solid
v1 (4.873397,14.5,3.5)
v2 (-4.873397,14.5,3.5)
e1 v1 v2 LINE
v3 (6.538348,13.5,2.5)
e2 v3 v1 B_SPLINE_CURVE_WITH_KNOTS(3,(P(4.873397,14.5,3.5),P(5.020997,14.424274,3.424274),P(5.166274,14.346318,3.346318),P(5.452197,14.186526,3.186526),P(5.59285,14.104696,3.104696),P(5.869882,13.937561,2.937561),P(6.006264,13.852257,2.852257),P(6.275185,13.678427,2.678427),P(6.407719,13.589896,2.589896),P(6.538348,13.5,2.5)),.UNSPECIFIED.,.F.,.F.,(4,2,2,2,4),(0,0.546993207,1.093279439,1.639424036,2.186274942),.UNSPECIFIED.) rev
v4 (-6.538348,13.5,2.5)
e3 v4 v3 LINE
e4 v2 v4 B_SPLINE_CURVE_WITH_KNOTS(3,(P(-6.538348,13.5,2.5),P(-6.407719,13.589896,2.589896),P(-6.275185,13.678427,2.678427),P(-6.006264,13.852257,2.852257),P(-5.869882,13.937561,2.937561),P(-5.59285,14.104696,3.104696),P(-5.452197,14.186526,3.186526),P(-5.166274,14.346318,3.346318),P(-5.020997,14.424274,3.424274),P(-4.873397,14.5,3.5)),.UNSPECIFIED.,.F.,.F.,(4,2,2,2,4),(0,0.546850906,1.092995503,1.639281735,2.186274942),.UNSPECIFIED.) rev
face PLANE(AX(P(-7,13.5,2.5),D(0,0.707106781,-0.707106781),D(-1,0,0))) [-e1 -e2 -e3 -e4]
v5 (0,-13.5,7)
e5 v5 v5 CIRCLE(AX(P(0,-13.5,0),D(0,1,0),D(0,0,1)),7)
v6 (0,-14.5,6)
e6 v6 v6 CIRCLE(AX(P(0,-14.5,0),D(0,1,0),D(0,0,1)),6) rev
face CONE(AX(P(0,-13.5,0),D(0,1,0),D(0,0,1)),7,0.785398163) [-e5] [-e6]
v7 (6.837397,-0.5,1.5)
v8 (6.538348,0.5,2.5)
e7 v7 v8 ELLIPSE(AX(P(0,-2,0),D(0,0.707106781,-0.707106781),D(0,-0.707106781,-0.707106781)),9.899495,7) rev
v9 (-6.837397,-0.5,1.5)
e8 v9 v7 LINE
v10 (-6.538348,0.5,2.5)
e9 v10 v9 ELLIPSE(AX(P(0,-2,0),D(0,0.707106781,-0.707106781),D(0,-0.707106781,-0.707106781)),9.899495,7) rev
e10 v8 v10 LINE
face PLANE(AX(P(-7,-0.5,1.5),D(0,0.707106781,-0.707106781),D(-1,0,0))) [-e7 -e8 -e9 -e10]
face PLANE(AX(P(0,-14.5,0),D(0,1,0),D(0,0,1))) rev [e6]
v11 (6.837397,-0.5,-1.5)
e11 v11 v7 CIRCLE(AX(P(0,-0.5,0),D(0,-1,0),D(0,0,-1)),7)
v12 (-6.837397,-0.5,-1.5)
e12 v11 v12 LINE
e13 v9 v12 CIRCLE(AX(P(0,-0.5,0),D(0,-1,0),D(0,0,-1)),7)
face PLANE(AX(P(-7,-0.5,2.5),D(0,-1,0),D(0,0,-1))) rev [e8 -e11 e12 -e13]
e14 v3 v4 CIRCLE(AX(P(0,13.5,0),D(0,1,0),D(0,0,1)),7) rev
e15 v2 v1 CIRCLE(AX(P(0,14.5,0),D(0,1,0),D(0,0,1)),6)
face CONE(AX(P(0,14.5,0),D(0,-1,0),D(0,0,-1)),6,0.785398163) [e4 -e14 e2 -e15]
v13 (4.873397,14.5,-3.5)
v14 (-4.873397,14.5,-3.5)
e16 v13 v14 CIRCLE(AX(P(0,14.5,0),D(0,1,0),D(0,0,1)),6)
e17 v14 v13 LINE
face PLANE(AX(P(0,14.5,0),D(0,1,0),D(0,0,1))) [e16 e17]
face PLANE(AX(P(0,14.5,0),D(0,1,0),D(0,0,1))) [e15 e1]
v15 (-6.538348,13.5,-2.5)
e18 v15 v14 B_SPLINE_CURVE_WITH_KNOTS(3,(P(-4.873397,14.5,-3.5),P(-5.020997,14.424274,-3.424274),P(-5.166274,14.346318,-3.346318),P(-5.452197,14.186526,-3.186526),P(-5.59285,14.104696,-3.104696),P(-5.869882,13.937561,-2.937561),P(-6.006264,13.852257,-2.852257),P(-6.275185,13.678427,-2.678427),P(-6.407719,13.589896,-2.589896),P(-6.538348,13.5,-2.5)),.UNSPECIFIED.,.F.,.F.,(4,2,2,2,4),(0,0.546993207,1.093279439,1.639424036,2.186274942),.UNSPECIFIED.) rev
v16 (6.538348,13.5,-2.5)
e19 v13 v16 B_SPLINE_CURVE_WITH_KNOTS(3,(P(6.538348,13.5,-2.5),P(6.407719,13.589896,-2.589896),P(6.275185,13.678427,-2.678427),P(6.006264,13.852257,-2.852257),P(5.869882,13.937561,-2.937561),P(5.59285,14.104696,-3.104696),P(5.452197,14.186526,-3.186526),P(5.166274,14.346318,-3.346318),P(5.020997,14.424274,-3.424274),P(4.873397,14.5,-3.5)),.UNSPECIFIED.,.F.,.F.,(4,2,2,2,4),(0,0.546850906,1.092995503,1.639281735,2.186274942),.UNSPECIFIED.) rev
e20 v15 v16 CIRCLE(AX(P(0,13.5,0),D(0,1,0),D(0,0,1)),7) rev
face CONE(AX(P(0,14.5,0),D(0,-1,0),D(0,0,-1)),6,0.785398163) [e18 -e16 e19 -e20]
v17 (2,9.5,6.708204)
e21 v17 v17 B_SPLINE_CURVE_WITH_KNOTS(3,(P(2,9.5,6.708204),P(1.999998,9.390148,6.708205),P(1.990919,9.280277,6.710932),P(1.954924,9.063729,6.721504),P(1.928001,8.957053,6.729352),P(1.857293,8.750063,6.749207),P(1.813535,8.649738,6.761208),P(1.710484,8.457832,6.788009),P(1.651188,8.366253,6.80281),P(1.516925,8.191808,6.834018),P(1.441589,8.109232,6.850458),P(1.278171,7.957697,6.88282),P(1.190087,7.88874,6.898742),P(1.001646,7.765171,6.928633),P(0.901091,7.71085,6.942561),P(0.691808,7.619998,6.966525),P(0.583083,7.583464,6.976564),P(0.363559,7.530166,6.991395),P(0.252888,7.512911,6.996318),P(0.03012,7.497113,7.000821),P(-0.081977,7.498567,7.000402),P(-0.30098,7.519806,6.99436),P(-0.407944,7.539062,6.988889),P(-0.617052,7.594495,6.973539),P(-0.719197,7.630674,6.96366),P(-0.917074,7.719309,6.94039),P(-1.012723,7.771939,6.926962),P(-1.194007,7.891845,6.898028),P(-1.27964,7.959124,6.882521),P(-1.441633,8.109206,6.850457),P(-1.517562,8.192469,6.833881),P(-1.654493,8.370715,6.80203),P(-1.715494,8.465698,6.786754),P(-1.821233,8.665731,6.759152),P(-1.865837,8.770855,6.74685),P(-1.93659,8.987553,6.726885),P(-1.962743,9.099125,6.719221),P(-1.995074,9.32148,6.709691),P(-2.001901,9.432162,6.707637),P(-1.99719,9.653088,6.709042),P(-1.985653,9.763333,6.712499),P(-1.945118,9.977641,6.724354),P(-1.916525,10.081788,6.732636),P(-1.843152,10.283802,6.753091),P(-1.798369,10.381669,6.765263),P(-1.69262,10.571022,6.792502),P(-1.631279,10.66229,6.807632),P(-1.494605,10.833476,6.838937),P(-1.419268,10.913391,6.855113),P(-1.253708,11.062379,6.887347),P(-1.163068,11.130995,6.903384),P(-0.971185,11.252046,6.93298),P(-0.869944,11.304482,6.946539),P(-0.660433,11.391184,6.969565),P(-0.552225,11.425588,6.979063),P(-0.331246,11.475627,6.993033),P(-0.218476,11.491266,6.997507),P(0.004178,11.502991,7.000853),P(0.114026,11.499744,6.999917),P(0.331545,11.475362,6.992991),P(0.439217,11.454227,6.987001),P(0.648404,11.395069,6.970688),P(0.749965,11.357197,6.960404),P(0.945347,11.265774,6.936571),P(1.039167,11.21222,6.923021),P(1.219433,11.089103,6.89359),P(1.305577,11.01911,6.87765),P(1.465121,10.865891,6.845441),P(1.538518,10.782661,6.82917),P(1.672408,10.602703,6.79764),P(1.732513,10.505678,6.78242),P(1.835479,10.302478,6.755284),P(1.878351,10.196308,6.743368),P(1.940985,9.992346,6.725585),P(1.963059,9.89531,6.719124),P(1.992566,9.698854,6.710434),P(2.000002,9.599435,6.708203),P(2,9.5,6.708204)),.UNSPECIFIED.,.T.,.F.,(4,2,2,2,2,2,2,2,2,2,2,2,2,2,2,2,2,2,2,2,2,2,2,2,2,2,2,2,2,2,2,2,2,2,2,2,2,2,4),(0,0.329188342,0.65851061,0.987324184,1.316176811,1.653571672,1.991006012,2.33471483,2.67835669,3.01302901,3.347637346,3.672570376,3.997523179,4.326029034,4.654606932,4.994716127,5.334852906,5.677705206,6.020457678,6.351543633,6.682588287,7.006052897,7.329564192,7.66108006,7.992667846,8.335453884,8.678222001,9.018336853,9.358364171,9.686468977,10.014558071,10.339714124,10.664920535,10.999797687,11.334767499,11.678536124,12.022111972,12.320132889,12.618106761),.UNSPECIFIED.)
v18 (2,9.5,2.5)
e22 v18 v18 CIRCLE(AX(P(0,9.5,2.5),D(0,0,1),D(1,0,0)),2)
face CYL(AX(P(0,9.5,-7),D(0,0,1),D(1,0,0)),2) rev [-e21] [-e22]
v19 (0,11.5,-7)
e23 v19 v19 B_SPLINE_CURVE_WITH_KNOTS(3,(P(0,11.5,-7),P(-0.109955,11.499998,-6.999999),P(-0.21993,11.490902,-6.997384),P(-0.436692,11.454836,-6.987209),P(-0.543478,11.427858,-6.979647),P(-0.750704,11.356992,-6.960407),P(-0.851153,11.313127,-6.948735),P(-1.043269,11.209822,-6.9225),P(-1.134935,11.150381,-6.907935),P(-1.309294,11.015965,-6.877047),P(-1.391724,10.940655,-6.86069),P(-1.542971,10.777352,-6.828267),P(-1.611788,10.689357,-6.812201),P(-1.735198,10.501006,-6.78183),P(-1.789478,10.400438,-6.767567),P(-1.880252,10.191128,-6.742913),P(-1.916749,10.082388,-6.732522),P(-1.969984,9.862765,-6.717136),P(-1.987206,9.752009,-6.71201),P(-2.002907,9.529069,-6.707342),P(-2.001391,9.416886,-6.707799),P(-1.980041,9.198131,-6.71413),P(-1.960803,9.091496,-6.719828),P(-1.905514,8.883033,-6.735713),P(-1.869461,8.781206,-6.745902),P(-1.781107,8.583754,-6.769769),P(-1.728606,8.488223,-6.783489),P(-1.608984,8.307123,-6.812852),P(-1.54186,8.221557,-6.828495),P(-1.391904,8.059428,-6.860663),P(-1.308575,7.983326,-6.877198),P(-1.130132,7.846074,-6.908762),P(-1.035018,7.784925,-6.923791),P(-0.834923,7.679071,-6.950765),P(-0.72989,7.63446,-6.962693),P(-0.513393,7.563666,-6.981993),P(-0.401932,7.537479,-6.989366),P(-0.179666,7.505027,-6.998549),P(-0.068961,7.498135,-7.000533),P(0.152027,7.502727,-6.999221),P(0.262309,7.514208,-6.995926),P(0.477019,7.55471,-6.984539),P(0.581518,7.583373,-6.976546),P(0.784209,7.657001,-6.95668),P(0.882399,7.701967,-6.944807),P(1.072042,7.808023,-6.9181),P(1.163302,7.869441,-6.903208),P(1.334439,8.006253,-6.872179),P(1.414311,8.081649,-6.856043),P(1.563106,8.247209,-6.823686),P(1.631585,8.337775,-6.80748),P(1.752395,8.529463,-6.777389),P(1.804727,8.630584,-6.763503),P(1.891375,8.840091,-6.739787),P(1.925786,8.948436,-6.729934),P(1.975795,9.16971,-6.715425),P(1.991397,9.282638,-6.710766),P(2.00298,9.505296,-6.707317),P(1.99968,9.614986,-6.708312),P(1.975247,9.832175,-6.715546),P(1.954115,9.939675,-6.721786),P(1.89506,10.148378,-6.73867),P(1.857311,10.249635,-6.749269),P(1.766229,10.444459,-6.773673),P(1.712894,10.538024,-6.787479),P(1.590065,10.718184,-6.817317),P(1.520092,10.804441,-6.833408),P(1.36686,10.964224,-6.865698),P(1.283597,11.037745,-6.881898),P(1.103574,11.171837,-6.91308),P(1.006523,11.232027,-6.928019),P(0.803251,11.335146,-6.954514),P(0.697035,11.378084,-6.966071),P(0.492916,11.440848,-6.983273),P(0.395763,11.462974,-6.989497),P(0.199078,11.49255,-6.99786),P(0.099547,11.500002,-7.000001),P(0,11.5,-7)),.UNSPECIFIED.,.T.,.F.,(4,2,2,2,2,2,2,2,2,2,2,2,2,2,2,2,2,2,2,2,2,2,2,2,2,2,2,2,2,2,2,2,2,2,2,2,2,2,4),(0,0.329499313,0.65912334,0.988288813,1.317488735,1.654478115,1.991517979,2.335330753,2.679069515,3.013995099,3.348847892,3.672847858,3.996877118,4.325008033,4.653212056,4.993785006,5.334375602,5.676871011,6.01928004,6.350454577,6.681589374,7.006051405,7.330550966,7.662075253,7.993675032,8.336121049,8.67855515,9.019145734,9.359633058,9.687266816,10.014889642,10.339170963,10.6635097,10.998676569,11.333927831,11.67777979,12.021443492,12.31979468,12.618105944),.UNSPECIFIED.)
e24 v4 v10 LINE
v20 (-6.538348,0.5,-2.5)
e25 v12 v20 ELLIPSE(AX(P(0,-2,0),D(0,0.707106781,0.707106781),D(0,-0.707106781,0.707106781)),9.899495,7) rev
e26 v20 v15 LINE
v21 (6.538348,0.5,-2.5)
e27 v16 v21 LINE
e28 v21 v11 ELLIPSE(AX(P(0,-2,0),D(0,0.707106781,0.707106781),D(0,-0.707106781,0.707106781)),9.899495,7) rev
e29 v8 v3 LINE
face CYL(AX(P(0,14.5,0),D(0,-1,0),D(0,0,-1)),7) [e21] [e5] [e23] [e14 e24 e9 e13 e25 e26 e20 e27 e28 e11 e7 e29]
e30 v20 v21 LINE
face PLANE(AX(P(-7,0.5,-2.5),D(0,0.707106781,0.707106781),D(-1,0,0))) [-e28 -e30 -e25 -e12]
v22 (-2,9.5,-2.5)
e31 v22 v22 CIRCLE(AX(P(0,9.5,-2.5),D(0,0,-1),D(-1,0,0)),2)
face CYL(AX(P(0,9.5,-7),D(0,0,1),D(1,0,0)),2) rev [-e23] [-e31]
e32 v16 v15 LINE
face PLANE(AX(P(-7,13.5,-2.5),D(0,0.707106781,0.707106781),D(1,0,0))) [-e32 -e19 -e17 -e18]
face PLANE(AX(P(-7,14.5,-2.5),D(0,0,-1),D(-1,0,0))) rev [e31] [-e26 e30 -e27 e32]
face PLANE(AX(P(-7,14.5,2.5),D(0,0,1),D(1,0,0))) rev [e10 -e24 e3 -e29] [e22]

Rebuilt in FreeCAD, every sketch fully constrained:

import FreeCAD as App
import Part
import Sketcher

V = App.Vector
Q = App.Units.Quantity


def edges_at(feature, points):
    """Names of the edges that pass closest to the given points."""
    edges = feature.Shape.Edges
    near = lambda p: min(range(len(edges)), key=lambda i: edges[i].distToShape(Part.Vertex(*p))[0])
    return sorted({f"Edge{near(p) + 1}" for p in points})


def add_polygon(sketch, points):
    """Adds a closed chain of lines whose ends are joined by coincident constraints."""
    first, n = sketch.GeometryCount, len(points)
    for a, b in zip(points, points[1:] + points[:1]):
        sketch.addGeometry(Part.LineSegment(App.Vector(*a, 0), App.Vector(*b, 0)), False)
    for i in range(n):
        sketch.addConstraint(Sketcher.Constraint("Coincident", first + i, 2, first + (i + 1) % n, 1))

doc = App.newDocument("Part")
body = doc.addObject("PartDesign::Body", "Body")

# Sketch on XZ plane
sketch1 = body.newObject("Sketcher::SketchObject", "Sketch")
sketch1.AttachmentSupport = (doc.getObject("XZ_Plane"), [""])
sketch1.MapMode = "FlatFace"
sketch1.addGeometry(Part.Circle(V(0, 0, 0), V(0, 0, 1), 7), False)
sketch1.addConstraint(Sketcher.Constraint("Coincident", 0, 3, -1, 1))
sketch1.addConstraint(Sketcher.Constraint("Diameter", 0, Q("14 mm")))
pad1 = body.newObject("PartDesign::Pad", "Pad")
pad1.Profile = sketch1
pad1.Length = 29
pad1.Midplane = True

# Sketch on YZ plane
sketch2 = body.newObject("Sketcher::SketchObject", "Sketch001")
sketch2.AttachmentSupport = (doc.getObject("YZ_Plane"), [""])
sketch2.MapMode = "FlatFace"
add_polygon(sketch2, [(14, 2), (0, 2), (0, -2), (14, -2)])  # lines 0-3
sketch2.addConstraint(Sketcher.Constraint("Horizontal", 0))
sketch2.addConstraint(Sketcher.Constraint("Vertical", 1))
sketch2.addConstraint(Sketcher.Constraint("Horizontal", 2))
sketch2.addConstraint(Sketcher.Constraint("Vertical", 3))
sketch2.addConstraint(Sketcher.Constraint("DistanceX", 0, 2, 0, 1, Q("15 mm")))
sketch2.addConstraint(Sketcher.Constraint("DistanceY", 1, 2, 1, 1, Q("5 mm")))
sketch2.addConstraint(Sketcher.Constraint("DistanceX", 0, 2, -1, 1, Q("0.5 mm")))
sketch2.addConstraint(Sketcher.Constraint("DistanceY", -1, 1, 0, 2, Q("2.5 mm")))
pocket1 = body.newObject("PartDesign::Pocket", "Pocket")
pocket1.Profile = sketch2
pocket1.Type = "ThroughAll"
pocket1.Midplane = True

# Sketch on XY plane
sketch3 = body.newObject("Sketcher::SketchObject", "Sketch002")
sketch3.AttachmentSupport = (doc.getObject("XY_Plane"), [""])
sketch3.MapMode = "FlatFace"
sketch3.addGeometry(Part.Circle(V(0, 9.5, 0), V(0, 0, 1), 2), False)
sketch3.addConstraint(Sketcher.Constraint("PointOnObject", 0, 3, -2))
sketch3.addConstraint(Sketcher.Constraint("Diameter", 0, Q("4 mm")))
sketch3.addConstraint(Sketcher.Constraint("DistanceY", -1, 1, 0, 3, Q("9.5 mm")))
pocket2 = body.newObject("PartDesign::Pocket", "Pocket001")
pocket2.Profile = sketch3
pocket2.Type = "ThroughAll"
pocket2.Midplane = True
doc.recompute()

chamfer = body.newObject("PartDesign::Chamfer", "Chamfer")
chamfer.Base = (pocket2, edges_at(pocket2, [(0, -14.5, 7)]))
chamfer.Size = 1
doc.recompute()

chamfer2 = body.newObject("PartDesign::Chamfer", "Chamfer001")
chamfer2.Base = (chamfer, edges_at(chamfer, [
    (0, -0.5, -2.5),
    (0, -0.5, 2.5),
    (3.969, 14.5, -5.766),
    (0, 14.5, 7),
    (0, 14.5, -2.5),
    (0, 14.5, 2.5),
]))
chamfer2.Size = 1

doc.recompute()
